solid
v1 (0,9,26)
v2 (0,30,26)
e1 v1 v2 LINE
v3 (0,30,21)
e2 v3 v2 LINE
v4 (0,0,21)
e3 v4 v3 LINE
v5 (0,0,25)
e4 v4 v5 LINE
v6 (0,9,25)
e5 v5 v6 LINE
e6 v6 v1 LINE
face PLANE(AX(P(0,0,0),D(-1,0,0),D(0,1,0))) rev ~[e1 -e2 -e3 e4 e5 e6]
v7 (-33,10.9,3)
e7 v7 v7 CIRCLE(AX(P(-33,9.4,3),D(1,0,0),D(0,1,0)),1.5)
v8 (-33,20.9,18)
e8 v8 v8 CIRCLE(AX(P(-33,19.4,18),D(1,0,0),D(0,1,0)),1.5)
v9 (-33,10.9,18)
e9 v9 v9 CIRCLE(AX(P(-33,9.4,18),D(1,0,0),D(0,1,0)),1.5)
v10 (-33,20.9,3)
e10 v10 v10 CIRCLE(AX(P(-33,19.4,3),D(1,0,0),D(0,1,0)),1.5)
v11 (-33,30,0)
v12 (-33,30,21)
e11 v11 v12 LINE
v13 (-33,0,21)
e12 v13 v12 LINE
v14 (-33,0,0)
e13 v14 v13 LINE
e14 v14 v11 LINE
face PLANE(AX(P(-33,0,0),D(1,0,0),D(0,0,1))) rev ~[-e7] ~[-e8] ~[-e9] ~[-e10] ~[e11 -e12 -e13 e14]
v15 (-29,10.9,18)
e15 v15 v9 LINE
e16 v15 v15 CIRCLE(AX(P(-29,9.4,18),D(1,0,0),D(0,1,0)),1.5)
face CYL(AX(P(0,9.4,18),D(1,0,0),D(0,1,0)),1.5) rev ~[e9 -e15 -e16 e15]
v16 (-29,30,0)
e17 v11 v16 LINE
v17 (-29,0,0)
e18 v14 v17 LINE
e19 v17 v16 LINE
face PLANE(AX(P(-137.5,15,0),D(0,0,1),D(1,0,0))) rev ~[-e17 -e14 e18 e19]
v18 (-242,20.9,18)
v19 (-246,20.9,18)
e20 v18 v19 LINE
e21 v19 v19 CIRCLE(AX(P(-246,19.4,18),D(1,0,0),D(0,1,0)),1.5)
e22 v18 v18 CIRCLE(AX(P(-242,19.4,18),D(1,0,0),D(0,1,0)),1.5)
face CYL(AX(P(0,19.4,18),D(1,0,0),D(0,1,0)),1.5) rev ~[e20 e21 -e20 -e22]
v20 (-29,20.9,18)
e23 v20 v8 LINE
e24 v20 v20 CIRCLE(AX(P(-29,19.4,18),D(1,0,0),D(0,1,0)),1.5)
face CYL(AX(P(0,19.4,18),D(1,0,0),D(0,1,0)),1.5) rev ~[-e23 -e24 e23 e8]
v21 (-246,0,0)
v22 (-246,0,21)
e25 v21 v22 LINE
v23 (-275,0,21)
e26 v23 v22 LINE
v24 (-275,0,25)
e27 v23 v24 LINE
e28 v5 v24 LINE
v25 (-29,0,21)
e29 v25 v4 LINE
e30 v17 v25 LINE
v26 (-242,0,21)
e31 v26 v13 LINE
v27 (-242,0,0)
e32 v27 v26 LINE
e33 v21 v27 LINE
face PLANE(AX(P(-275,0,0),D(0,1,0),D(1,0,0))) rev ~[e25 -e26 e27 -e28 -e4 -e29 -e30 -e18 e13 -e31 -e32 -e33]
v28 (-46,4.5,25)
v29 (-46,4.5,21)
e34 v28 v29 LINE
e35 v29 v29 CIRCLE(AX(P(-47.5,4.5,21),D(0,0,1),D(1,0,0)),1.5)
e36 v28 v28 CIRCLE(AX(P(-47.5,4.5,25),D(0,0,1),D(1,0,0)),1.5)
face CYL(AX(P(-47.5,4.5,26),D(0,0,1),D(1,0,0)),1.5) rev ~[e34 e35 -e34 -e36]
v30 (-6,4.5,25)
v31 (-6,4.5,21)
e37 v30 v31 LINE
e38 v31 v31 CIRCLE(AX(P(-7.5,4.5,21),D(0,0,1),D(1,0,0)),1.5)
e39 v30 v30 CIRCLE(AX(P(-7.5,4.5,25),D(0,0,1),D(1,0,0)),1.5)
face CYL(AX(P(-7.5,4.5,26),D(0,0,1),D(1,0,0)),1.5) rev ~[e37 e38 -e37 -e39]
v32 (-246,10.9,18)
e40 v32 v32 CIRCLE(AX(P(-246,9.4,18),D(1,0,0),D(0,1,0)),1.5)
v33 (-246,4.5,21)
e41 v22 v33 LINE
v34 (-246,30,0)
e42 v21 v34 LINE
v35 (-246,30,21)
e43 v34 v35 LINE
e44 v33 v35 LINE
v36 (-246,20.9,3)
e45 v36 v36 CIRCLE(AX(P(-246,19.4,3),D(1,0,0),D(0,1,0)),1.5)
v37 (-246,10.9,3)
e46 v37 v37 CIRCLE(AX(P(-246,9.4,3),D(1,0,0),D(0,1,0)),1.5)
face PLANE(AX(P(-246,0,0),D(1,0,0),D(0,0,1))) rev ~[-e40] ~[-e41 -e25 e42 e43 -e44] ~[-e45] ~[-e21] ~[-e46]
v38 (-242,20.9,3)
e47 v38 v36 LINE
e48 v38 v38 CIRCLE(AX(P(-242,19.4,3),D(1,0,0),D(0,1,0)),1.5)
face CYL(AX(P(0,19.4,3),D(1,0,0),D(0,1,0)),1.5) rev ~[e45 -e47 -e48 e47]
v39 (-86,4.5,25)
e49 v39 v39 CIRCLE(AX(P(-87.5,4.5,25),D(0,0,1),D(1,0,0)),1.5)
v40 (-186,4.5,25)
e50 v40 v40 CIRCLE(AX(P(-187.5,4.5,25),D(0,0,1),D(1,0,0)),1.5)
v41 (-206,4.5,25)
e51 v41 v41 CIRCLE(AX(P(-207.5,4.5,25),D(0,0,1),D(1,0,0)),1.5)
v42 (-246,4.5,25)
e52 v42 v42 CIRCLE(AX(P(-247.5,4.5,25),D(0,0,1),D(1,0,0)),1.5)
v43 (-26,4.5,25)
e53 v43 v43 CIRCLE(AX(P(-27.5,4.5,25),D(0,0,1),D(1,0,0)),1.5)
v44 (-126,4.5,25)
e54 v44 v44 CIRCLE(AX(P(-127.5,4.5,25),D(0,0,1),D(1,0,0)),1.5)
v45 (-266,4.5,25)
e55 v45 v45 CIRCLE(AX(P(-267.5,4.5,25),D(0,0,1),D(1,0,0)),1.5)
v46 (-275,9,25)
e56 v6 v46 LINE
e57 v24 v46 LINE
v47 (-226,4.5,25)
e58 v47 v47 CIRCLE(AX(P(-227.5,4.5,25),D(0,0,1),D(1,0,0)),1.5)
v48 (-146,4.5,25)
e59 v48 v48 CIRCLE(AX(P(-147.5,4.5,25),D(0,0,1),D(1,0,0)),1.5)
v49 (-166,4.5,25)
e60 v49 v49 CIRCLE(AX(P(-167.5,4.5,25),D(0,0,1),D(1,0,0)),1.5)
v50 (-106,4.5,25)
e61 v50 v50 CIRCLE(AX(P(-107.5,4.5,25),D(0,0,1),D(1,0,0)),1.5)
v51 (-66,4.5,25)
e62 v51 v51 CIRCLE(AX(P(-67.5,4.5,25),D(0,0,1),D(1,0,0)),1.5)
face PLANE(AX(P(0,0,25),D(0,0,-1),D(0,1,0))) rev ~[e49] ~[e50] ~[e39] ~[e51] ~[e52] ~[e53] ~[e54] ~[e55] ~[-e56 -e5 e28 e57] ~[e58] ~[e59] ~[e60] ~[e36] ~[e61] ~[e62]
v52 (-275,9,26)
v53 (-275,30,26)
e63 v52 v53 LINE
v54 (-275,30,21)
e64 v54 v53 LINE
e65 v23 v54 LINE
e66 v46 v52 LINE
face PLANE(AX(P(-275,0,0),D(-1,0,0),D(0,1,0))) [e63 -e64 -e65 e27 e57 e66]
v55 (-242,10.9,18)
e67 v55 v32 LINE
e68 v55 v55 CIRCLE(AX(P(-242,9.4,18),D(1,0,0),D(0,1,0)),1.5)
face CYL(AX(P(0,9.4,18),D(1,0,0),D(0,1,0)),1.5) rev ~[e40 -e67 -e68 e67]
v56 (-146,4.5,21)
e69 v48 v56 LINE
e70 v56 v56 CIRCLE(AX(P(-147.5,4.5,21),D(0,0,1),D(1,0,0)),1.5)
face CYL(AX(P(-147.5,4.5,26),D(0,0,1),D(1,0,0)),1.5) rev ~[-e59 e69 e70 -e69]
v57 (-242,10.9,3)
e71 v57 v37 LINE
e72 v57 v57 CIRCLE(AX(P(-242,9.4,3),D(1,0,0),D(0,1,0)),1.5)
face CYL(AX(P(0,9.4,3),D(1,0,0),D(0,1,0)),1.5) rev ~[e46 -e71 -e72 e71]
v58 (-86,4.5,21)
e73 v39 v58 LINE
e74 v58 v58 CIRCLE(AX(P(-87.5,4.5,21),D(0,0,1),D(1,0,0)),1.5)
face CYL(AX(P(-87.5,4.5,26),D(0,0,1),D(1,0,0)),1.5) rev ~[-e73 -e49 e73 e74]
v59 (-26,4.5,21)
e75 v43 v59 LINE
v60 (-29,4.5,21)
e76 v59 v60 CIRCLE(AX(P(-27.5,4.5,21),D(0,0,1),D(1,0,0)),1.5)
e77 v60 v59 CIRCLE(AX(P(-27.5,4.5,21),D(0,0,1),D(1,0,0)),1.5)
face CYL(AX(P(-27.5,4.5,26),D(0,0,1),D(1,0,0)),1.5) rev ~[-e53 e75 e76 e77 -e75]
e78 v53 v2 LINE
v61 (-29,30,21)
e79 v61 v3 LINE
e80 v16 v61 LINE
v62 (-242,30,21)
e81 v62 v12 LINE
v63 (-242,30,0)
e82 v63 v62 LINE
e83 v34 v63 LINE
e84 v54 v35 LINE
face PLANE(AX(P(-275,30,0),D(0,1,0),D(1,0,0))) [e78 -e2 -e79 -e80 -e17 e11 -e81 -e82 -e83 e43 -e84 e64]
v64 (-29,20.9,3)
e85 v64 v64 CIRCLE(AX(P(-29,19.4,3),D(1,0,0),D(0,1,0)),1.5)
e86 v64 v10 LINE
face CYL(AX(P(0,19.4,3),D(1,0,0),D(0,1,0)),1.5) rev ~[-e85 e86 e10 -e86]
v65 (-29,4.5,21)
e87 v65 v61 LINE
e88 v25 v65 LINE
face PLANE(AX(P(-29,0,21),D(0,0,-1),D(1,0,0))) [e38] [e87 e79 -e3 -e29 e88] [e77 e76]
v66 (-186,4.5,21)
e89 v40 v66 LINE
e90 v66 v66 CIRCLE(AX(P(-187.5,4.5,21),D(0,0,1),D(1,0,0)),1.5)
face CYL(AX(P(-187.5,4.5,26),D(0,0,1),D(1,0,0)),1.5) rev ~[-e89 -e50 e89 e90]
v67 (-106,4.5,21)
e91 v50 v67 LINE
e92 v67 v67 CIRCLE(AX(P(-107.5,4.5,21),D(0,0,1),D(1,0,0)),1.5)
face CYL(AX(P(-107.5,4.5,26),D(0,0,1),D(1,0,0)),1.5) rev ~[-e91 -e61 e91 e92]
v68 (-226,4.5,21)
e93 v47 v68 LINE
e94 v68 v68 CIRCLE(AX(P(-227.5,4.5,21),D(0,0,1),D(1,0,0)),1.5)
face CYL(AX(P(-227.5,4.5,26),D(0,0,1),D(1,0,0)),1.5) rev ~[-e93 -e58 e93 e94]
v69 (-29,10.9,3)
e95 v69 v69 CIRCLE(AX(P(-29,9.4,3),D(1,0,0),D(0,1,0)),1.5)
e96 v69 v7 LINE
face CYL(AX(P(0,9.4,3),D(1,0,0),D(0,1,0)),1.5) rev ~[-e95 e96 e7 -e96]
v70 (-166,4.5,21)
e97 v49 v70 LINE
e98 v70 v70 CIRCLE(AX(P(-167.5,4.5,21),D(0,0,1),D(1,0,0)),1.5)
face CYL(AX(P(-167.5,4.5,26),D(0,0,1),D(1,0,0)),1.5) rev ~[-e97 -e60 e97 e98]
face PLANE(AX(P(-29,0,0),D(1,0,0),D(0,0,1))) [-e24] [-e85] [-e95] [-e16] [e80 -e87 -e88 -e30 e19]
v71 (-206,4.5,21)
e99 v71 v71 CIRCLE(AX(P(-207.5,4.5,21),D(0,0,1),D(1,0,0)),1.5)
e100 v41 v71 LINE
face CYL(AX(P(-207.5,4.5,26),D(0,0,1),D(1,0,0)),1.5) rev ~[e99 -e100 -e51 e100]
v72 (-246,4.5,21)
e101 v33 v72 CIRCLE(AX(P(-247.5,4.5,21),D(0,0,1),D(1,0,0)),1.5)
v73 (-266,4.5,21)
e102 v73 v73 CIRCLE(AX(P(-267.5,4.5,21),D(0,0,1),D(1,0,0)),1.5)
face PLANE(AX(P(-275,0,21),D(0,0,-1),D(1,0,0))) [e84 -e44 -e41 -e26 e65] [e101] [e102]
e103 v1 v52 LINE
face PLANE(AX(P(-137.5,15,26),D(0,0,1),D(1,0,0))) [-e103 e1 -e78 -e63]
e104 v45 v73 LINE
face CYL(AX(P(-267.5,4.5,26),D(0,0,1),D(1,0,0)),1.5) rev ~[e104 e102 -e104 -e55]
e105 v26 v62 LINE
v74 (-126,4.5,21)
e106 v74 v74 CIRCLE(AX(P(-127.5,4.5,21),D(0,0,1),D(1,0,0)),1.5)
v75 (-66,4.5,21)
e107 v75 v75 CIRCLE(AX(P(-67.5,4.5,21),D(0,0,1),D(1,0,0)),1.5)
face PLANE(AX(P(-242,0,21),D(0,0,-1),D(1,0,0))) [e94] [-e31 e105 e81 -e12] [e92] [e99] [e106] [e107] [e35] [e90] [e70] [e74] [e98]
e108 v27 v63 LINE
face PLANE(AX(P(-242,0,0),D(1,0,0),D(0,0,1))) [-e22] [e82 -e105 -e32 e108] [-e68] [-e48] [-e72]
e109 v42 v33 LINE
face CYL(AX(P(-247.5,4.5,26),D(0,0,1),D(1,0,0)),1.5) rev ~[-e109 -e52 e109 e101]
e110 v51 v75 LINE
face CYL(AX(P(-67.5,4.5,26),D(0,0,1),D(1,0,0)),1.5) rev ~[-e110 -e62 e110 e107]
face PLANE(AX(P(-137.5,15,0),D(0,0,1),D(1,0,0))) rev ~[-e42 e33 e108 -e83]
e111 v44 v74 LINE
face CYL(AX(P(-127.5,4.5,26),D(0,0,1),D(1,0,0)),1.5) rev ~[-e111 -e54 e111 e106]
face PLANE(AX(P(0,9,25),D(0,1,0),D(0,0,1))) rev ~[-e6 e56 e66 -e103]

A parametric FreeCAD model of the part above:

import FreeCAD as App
import Part
import Sketcher

doc = App.newDocument("Part")
body = doc.addObject("PartDesign::Body", "Body")

# Sketch on XY plane
sketch1 = doc.addObject("Sketcher::SketchObject", "Sketch")
body.addObject(sketch1)
sketch1.AttachmentSupport = (doc.XY_Plane, [""])
sketch1.MapMode = "FlatFace"
sketch1.addGeometry([
    Part.LineSegment(App.Vector(-275, 30, 0), App.Vector(-275, 0, 0)),
    Part.LineSegment(App.Vector(-275, 0, 0), App.Vector(0, 0, 0)),
    Part.LineSegment(App.Vector(0, 0, 0), App.Vector(0, 30, 0)),
    Part.LineSegment(App.Vector(0, 30, 0), App.Vector(-275, 30, 0)),
], False)
sketch1.addConstraint([
    Sketcher.Constraint("Coincident", 0, 2, 1, 1),
    Sketcher.Constraint("Coincident", 1, 2, 2, 1),
    Sketcher.Constraint("Coincident", 2, 2, 3, 1),
    Sketcher.Constraint("Coincident", 3, 2, 0, 1),
    Sketcher.Constraint("Vertical", 0),
    Sketcher.Constraint("Horizontal", 1),
    Sketcher.Constraint("Vertical", 2),
    Sketcher.Constraint("Horizontal", 3),
    Sketcher.Constraint("Coincident", 1, 2, -1, 1),
    Sketcher.Constraint("DistanceX", 1, 1, 1, 2, 275.0),
    Sketcher.Constraint("DistanceY", 0, 2, 0, 1, 30.0),
])
pad1 = doc.addObject("PartDesign::Pad", "Pad")
body.addObject(pad1)
pad1.Profile = sketch1
pad1.Length = 26

# Sketch on YZ plane
sketch2 = doc.addObject("Sketcher::SketchObject", "Sketch001")
body.addObject(sketch2)
sketch2.AttachmentSupport = (doc.YZ_Plane, [""])
sketch2.MapMode = "FlatFace"
sketch2.addGeometry([
    Part.LineSegment(App.Vector(0, 26, 0), App.Vector(0, 25, 0)),
    Part.LineSegment(App.Vector(0, 25, 0), App.Vector(9, 25, 0)),
    Part.LineSegment(App.Vector(9, 25, 0), App.Vector(9, 26, 0)),
    Part.LineSegment(App.Vector(9, 26, 0), App.Vector(0, 26, 0)),
], False)
sketch2.addConstraint([
    Sketcher.Constraint("Coincident", 0, 2, 1, 1),
    Sketcher.Constraint("Coincident", 1, 2, 2, 1),
    Sketcher.Constraint("Coincident", 2, 2, 3, 1),
    Sketcher.Constraint("Coincident", 3, 2, 0, 1),
    Sketcher.Constraint("Vertical", 0),
    Sketcher.Constraint("Horizontal", 1),
    Sketcher.Constraint("Vertical", 2),
    Sketcher.Constraint("Horizontal", 3),
    Sketcher.Constraint("PointOnObject", 0, 2, -2),
    Sketcher.Constraint("DistanceX", 1, 1, 1, 2, 9.0),
    Sketcher.Constraint("DistanceY", 0, 2, 0, 1, 1.0),
    Sketcher.Constraint("DistanceY", -1, 1, 0, 2, 25.0),
])
pocket1 = doc.addObject("PartDesign::Pocket", "Pocket")
body.addObject(pocket1)
pocket1.Profile = sketch2
pocket1.Length = 275

# Sketch on XY plane
sketch3 = doc.addObject("Sketcher::SketchObject", "Sketch002")
body.addObject(sketch3)
sketch3.AttachmentSupport = (doc.XY_Plane, [""])
sketch3.MapMode = "FlatFace"
sketch3.AttachmentOffset = App.Placement(App.Vector(0, 0, 26), App.Rotation())
sketch3.addGeometry(Part.Circle(App.Vector(-7.5, 4.5, 0), App.Vector(0, 0, 1), 1.5), False)
sketch3.addConstraint([
    Sketcher.Constraint("Diameter", 0, 3.0),
    Sketcher.Constraint("DistanceX", 0, 3, -1, 1, 7.5),
    Sketcher.Constraint("DistanceY", -1, 1, 0, 3, 4.5),
])
pocket2 = doc.addObject("PartDesign::Pocket", "Pocket001")
body.addObject(pocket2)
pocket2.Profile = sketch3
pocket2.Length = 6
doc.recompute()

linearpattern = doc.addObject("PartDesign::LinearPattern", "LinearPattern")
body.addObject(linearpattern)
linearpattern.Originals = [pocket2]
linearpattern.Direction = (doc.X_Axis, [""])
linearpattern.Mode = "offset"
linearpattern.Offset = 20
linearpattern.Occurrences = 14
linearpattern.Reversed = True
body.Tip = linearpattern

# Sketch on XZ plane
sketch4 = doc.addObject("Sketcher::SketchObject", "Sketch003")
body.addObject(sketch4)
sketch4.AttachmentSupport = (doc.XZ_Plane, [""])
sketch4.MapMode = "FlatFace"
sketch4.addGeometry([
    Part.LineSegment(App.Vector(-29, 21, 0), App.Vector(-29, 0, 0)),  # 0
    Part.LineSegment(App.Vector(-29, 0, 0), App.Vector(0, 0, 0)),  # 1
    Part.LineSegment(App.Vector(0, 0, 0), App.Vector(0, 21, 0)),  # 2
    Part.LineSegment(App.Vector(0, 21, 0), App.Vector(-29, 21, 0)),  # 3
    Part.LineSegment(App.Vector(-275, 21, 0), App.Vector(-275, 0, 0)),  # 4
    Part.LineSegment(App.Vector(-275, 0, 0), App.Vector(-246, 0, 0)),  # 5
    Part.LineSegment(App.Vector(-246, 0, 0), App.Vector(-246, 21, 0)),  # 6
    Part.LineSegment(App.Vector(-246, 21, 0), App.Vector(-275, 21, 0)),  # 7
    Part.LineSegment(App.Vector(-242, 21, 0), App.Vector(-242, 0, 0)),  # 8
    Part.LineSegment(App.Vector(-242, 0, 0), App.Vector(-33, 0, 0)),  # 9
    Part.LineSegment(App.Vector(-33, 0, 0), App.Vector(-33, 21, 0)),  # 10
    Part.LineSegment(App.Vector(-33, 21, 0), App.Vector(-242, 21, 0)),  # 11
], False)
sketch4.addConstraint([
    Sketcher.Constraint("Coincident", 0, 2, 1, 1),
    Sketcher.Constraint("Coincident", 1, 2, 2, 1),
    Sketcher.Constraint("Coincident", 2, 2, 3, 1),
    Sketcher.Constraint("Coincident", 3, 2, 0, 1),
    Sketcher.Constraint("Coincident", 4, 2, 5, 1),
    Sketcher.Constraint("Coincident", 5, 2, 6, 1),
    Sketcher.Constraint("Coincident", 6, 2, 7, 1),
    Sketcher.Constraint("Coincident", 7, 2, 4, 1),
    Sketcher.Constraint("Coincident", 8, 2, 9, 1),
    Sketcher.Constraint("Coincident", 9, 2, 10, 1),
    Sketcher.Constraint("Coincident", 10, 2, 11, 1),
    Sketcher.Constraint("Coincident", 11, 2, 8, 1),
    Sketcher.Constraint("Vertical", 0),
    Sketcher.Constraint("Horizontal", 1),
    Sketcher.Constraint("Vertical", 2),
    Sketcher.Constraint("Horizontal", 3),
    Sketcher.Constraint("Vertical", 4),
    Sketcher.Constraint("Horizontal", 5),
    Sketcher.Constraint("Vertical", 6),
    Sketcher.Constraint("Horizontal", 7),
    Sketcher.Constraint("Vertical", 8),
    Sketcher.Constraint("Horizontal", 9),
    Sketcher.Constraint("Vertical", 10),
    Sketcher.Constraint("Horizontal", 11),
    Sketcher.Constraint("Coincident", 1, 2, -1, 1),
    Sketcher.Constraint("PointOnObject", 4, 2, -1),
    Sketcher.Constraint("PointOnObject", 8, 2, -1),
    Sketcher.Constraint("Horizontal", 3, 2, 6, 2),
    Sketcher.Constraint("Horizontal", 7, 2, 10, 2),
    Sketcher.Constraint("Equal", 3, 5),
    Sketcher.Constraint("DistanceX", 1, 1, 1, 2, 29.0),
    Sketcher.Constraint("DistanceX", 9, 1, 9, 2, 209.0),
    Sketcher.Constraint("DistanceY", 0, 2, 0, 1, 21.0),
    Sketcher.Constraint("DistanceX", 4, 2, -1, 1, 275.0),
    Sketcher.Constraint("DistanceX", 8, 2, -1, 1, 242.0),
])
pocket3 = doc.addObject("PartDesign::Pocket", "Pocket002")
body.addObject(pocket3)
pocket3.Profile = sketch4
pocket3.Length = 30

# Sketch on YZ plane
sketch5 = doc.addObject("Sketcher::SketchObject", "Sketch004")
body.addObject(sketch5)
sketch5.AttachmentSupport = (doc.YZ_Plane, [""])
sketch5.MapMode = "FlatFace"
sketch5.addGeometry([
    Part.Circle(App.Vector(9.4, 18, 0), App.Vector(0, 0, 1), 1.5),
    Part.Circle(App.Vector(19.4, 18, 0), App.Vector(0, 0, 1), 1.5),
    Part.Circle(App.Vector(9.4, 3, 0), App.Vector(0, 0, 1), 1.5),
    Part.Circle(App.Vector(19.4, 3, 0), App.Vector(0, 0, 1), 1.5),
], False)
sketch5.addConstraint([
    Sketcher.Constraint("Equal", 0, 1),
    Sketcher.Constraint("Equal", 1, 2),
    Sketcher.Constraint("Equal", 2, 3),
    Sketcher.Constraint("Horizontal", 0, 3, 1, 3),
    Sketcher.Constraint("Horizontal", 2, 3, 3, 3),
    Sketcher.Constraint("Vertical", 0, 3, 2, 3),
    Sketcher.Constraint("Vertical", 1, 3, 3, 3),
    Sketcher.Constraint("Diameter", 0, 3.0),
    Sketcher.Constraint("DistanceY", -1, 1, 0, 3, 18.0),
    Sketcher.Constraint("DistanceY", -1, 1, 2, 3, 3.0),
    Sketcher.Constraint("DistanceX", 0, 3, 1, 3, 10.0),
    Sketcher.Constraint("DistanceX", -1, 1, 0, 3, 9.4),
])
pocket4 = doc.addObject("PartDesign::Pocket", "Pocket003")
body.addObject(pocket4)
pocket4.Profile = sketch5
pocket4.Length = 275

doc.recompute()
